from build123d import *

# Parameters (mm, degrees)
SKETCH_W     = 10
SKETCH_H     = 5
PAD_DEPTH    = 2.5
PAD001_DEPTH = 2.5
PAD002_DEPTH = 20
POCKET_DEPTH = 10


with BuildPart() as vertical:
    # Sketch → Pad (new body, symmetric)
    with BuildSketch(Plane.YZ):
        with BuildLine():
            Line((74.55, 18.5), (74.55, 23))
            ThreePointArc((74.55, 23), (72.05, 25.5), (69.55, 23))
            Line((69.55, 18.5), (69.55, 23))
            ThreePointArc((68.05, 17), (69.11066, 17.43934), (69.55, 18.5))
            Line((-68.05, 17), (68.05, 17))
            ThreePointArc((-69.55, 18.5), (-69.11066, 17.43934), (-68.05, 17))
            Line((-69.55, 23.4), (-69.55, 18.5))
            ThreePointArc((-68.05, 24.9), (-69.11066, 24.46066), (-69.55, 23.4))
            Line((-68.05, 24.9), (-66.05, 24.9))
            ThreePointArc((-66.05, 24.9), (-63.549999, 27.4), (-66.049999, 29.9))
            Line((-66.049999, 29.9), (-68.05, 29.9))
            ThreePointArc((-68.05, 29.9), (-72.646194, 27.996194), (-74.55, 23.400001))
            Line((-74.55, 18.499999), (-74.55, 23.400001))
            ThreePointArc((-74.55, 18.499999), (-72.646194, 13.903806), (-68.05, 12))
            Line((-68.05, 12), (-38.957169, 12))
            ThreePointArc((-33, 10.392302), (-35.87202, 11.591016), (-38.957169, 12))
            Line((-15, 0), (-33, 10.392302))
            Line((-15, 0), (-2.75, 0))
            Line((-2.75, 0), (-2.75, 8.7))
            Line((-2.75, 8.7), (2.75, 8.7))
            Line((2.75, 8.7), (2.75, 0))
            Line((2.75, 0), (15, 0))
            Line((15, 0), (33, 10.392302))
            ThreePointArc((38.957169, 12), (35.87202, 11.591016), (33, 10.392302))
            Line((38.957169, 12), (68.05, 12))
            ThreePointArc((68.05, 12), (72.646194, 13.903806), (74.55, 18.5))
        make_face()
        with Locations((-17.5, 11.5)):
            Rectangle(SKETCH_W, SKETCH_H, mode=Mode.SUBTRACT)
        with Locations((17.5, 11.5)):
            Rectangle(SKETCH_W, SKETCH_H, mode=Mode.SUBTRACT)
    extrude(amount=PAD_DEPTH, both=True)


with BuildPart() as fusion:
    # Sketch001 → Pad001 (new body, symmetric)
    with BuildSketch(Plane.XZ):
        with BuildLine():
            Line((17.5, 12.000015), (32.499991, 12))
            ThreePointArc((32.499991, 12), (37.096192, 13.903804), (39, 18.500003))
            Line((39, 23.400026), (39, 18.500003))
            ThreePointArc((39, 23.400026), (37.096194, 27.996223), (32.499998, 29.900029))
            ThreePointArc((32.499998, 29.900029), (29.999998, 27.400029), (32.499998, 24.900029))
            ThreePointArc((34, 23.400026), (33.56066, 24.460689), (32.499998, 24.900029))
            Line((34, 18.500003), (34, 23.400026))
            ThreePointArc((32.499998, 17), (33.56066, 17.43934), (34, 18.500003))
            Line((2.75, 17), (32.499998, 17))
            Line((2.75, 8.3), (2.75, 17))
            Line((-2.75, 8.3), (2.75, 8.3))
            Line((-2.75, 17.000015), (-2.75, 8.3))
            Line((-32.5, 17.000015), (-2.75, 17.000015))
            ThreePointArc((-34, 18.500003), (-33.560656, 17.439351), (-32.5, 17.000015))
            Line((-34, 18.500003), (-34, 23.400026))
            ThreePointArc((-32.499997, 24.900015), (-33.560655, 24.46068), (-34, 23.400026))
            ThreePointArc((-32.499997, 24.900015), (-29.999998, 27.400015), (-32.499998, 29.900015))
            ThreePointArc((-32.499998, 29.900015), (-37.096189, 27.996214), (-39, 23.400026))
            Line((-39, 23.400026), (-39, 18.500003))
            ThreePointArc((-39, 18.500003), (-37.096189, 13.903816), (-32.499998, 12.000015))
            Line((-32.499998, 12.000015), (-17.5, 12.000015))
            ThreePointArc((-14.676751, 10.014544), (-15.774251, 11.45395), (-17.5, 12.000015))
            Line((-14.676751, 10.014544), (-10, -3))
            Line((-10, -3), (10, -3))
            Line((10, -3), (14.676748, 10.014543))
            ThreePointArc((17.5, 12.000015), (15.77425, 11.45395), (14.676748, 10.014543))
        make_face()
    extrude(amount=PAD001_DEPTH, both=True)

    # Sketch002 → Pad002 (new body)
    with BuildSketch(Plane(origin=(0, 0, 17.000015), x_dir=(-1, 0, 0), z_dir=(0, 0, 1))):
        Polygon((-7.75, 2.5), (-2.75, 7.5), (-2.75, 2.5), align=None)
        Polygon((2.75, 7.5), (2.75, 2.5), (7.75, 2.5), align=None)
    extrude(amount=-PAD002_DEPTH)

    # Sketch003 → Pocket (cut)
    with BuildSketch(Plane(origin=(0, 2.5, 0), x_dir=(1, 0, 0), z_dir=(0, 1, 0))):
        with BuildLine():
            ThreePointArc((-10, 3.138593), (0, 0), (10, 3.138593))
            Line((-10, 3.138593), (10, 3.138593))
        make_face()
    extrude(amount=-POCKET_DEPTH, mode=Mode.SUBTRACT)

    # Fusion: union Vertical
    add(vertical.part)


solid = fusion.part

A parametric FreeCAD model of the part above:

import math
import FreeCAD as App
import Part
import Sketcher
from FreeCAD import Vector
Q = App.Units.Quantity


def add_polygon(sketch, points):
    """Adds a closed chain of lines whose ends are joined by coincident constraints."""
    first, n = sketch.GeometryCount, len(points)
    for a, b in zip(points, points[1:] + points[:1]):
        sketch.addGeometry(Part.LineSegment(App.Vector(*a, 0), App.Vector(*b, 0)), False)
    for i in range(n):
        sketch.addConstraint(Sketcher.Constraint("Coincident", first + i, 2, first + (i + 1) % n, 1))

doc = App.newDocument("Part")
body = doc.addObject("PartDesign::Body", "Body")

# Sketch on YZ plane
sketch1 = doc.addObject("Sketcher::SketchObject", "Sketch")
body.addObject(sketch1)
sketch1.AttachmentSupport = (doc.YZ_Plane, [""])
sketch1.MapMode = "FlatFace"
sketch1.addGeometry(Part.LineSegment(Vector(74.5, 18.5, 0), Vector(74.5, 23, 0)), False)  # 0
sketch1.addGeometry(Part.ArcOfCircle(Part.Circle(Vector(72, 23, 0), Vector(0, 0, 1), 2.5), math.radians(0), math.radians(180)), False)  # 1
sketch1.addGeometry(Part.LineSegment(Vector(69.5, 23, 0), Vector(69.5, 18.5, 0)), False)  # 2
sketch1.addGeometry(Part.ArcOfCircle(Part.Circle(Vector(68, 18.5, 0), Vector(0, 0, 1), 1.5), math.radians(-90), math.radians(0)), False)  # 3
sketch1.addGeometry(Part.LineSegment(Vector(68, 17, 0), Vector(-68, 17, 0)), False)  # 4
sketch1.addGeometry(Part.ArcOfCircle(Part.Circle(Vector(-68, 18.5, 0), Vector(0, 0, 1), 1.5), math.radians(-180), math.radians(-90)), False)  # 5
sketch1.addGeometry(Part.LineSegment(Vector(-69.5, 18.5, 0), Vector(-69.5, 23.4, 0)), False)  # 6
sketch1.addGeometry(Part.ArcOfCircle(Part.Circle(Vector(-68, 23.4, 0), Vector(0, 0, 1), 1.5), math.radians(90), math.radians(180)), False)  # 7
sketch1.addGeometry(Part.LineSegment(Vector(-68, 24.9, 0), Vector(-66, 24.9, 0)), False)  # 8
sketch1.addGeometry(Part.ArcOfCircle(Part.Circle(Vector(-66, 27.4, 0), Vector(0, 0, 1), 2.5), math.radians(-90), math.radians(90)), False)  # 9
sketch1.addGeometry(Part.LineSegment(Vector(-66, 29.9, 0), Vector(-68, 29.9, 0)), False)  # 10
sketch1.addGeometry(Part.ArcOfCircle(Part.Circle(Vector(-68, 23.4, 0), Vector(0, 0, 1), 6.5), math.radians(90), math.radians(180)), False)  # 11
sketch1.addGeometry(Part.LineSegment(Vector(-74.5, 23.4, 0), Vector(-74.5, 18.5, 0)), False)  # 12
sketch1.addGeometry(Part.ArcOfCircle(Part.Circle(Vector(-68, 18.5, 0), Vector(0, 0, 1), 6.5), math.radians(-180), math.radians(-90)), False)  # 13
sketch1.addGeometry(Part.LineSegment(Vector(-68, 12, 0), Vector(-39, 12, 0)), False)  # 14
sketch1.addGeometry(Part.ArcOfCircle(Part.Circle(Vector(-39, 0.2, 0), Vector(0, 0, 1), 11.8), math.radians(60), math.radians(90)), False)  # 15
sketch1.addGeometry(Part.LineSegment(Vector(-33, 10.4, 0), Vector(-15, 0, 0)), False)  # 16
sketch1.addGeometry(Part.LineSegment(Vector(-15, 0, 0), Vector(-2.8, 0, 0)), False)  # 17
sketch1.addGeometry(Part.LineSegment(Vector(-2.8, 0, 0), Vector(-2.8, 8.7, 0)), False)  # 18
sketch1.addGeometry(Part.LineSegment(Vector(-2.8, 8.7, 0), Vector(2.8, 8.7, 0)), False)  # 19
sketch1.addGeometry(Part.LineSegment(Vector(2.8, 8.7, 0), Vector(2.8, 0, 0)), False)  # 20
sketch1.addGeometry(Part.LineSegment(Vector(2.8, 0, 0), Vector(15, 0, 0)), False)  # 21
sketch1.addGeometry(Part.LineSegment(Vector(15, 0, 0), Vector(33, 10.4, 0)), False)  # 22
sketch1.addGeometry(Part.ArcOfCircle(Part.Circle(Vector(39, 0.2, 0), Vector(0, 0, 1), 11.8), math.radians(90), math.radians(120)), False)  # 23
sketch1.addGeometry(Part.LineSegment(Vector(39, 12, 0), Vector(68, 12, 0)), False)  # 24
sketch1.addGeometry(Part.ArcOfCircle(Part.Circle(Vector(68, 18.5, 0), Vector(0, 0, 1), 6.5), math.radians(-90), math.radians(0)), False)  # 25
add_polygon(sketch1, [(-12.5, 9), (-22.5, 9), (-22.5, 14), (-12.5, 14)])  # lines 26-29
add_polygon(sketch1, [(22.5, 9), (12.5, 9), (12.5, 14), (22.5, 14)])  # lines 30-33
sketch1.addConstraint([
    Sketcher.Constraint("Tangent", 0, 2, 1, 1),
    Sketcher.Constraint("Tangent", 1, 2, 2, 1),
    Sketcher.Constraint("Tangent", 2, 2, 3, 2),
    Sketcher.Constraint("Tangent", 3, 1, 4, 1),
    Sketcher.Constraint("Tangent", 4, 2, 5, 2),
    Sketcher.Constraint("Tangent", 5, 1, 6, 1),
    Sketcher.Constraint("Tangent", 6, 2, 7, 2),
    Sketcher.Constraint("Tangent", 7, 1, 8, 1),
    Sketcher.Constraint("Tangent", 8, 2, 9, 1),
    Sketcher.Constraint("Tangent", 9, 2, 10, 1),
    Sketcher.Constraint("Tangent", 10, 2, 11, 1),
    Sketcher.Constraint("Tangent", 11, 2, 12, 1),
    Sketcher.Constraint("Tangent", 12, 2, 13, 1),
    Sketcher.Constraint("Tangent", 13, 2, 14, 1),
    Sketcher.Constraint("Coincident", 14, 2, 15, 2),
    Sketcher.Constraint("Coincident", 15, 1, 16, 1),
    Sketcher.Constraint("Coincident", 16, 2, 17, 1),
    Sketcher.Constraint("Coincident", 17, 2, 18, 1),
    Sketcher.Constraint("Coincident", 18, 2, 19, 1),
    Sketcher.Constraint("Coincident", 19, 2, 20, 1),
    Sketcher.Constraint("Coincident", 20, 2, 21, 1),
    Sketcher.Constraint("Coincident", 21, 2, 22, 1),
    Sketcher.Constraint("Coincident", 22, 2, 23, 2),
    Sketcher.Constraint("Coincident", 23, 1, 24, 1),
    Sketcher.Constraint("Tangent", 24, 2, 25, 1),
    Sketcher.Constraint("Tangent", 25, 2, 0, 1),
    Sketcher.Constraint("Vertical", 0),
    Sketcher.Constraint("Vertical", 2),
    Sketcher.Constraint("Horizontal", 4),
    Sketcher.Constraint("Vertical", 6),
    Sketcher.Constraint("Horizontal", 8),
    Sketcher.Constraint("Horizontal", 10),
    Sketcher.Constraint("Vertical", 12),
    Sketcher.Constraint("Horizontal", 14),
    Sketcher.Constraint("Horizontal", 17),
    Sketcher.Constraint("Vertical", 18),
    Sketcher.Constraint("Horizontal", 19),
    Sketcher.Constraint("Vertical", 20),
    Sketcher.Constraint("Horizontal", 21),
    Sketcher.Constraint("Horizontal", 24),
    Sketcher.Constraint("Horizontal", 26),
    Sketcher.Constraint("Vertical", 27),
    Sketcher.Constraint("Horizontal", 28),
    Sketcher.Constraint("Vertical", 29),
    Sketcher.Constraint("Horizontal", 30),
    Sketcher.Constraint("Vertical", 31),
    Sketcher.Constraint("Horizontal", 32),
    Sketcher.Constraint("Vertical", 33),
    Sketcher.Constraint("Coincident", 11, 3, 7, 3),
    Sketcher.Constraint("Coincident", 13, 3, 5, 3),
    Sketcher.Constraint("Coincident", 25, 3, 3, 3),
    Sketcher.Constraint("Equal", 3, 5),
    Sketcher.Constraint("Equal", 5, 7),
    Sketcher.Constraint("Equal", 1, 9),
    Sketcher.Constraint("Equal", 15, 23),
    Sketcher.Constraint("Symmetric", 17, 2, 20, 2, -1, 1),
    Sketcher.Constraint("Symmetric", 16, 2, 21, 2, -2),
    Sketcher.Constraint("Symmetric", 15, 1, 22, 2, -2),
    Sketcher.Constraint("Symmetric", 29, 2, 30, 2, -2),
    Sketcher.Constraint("Symmetric", 27, 2, 32, 2, -2),
    Sketcher.Constraint("Equal", 14, 24),
    Sketcher.Constraint("Radius", 1, 2.5),
    Sketcher.Constraint("Radius", 3, 1.500001),
    Sketcher.Constraint("DistanceX", 8, 1, 8, 2, 2.0),
    Sketcher.Constraint("DistanceX", 26, 2, 26, 1, 10.0),
    Sketcher.Constraint("DistanceY", 27, 1, 27, 2, 5.0),
    Sketcher.Constraint("Angle", 16, Q("-29.999993 deg")),
    Sketcher.Constraint("DistanceX", 4, 2, 4, 1, 136.1),
    Sketcher.Constraint("DistanceX", 19, 1, 19, 2, 5.5),
    Sketcher.Constraint("DistanceY", 0, 1, 0, 2, 4.5),
    Sketcher.Constraint("DistanceY", 6, 1, 6, 2, 4.9),
    Sketcher.Constraint("DistanceY", 18, 1, 18, 2, 8.7),
    Sketcher.Constraint("DistanceY", -1, 1, 1, 3, 23.0),
    Sketcher.Constraint("DistanceX", 15, 1, -1, 1, 33.0),
    Sketcher.Constraint("DistanceX", 16, 2, -1, 1, 15.0),
    Sketcher.Constraint("DistanceY", -1, 1, 26, 2, 9.0),
    Sketcher.Constraint("DistanceX", 26, 2, -1, 1, 22.5),
    Sketcher.Constraint("DistanceX", -1, 1, 1, 3, 72.05),
    Sketcher.Constraint("Radius", 15, 11.840593),
    Sketcher.Constraint("DistanceX", 14, 1, 14, 2, 29.092831),
])
pad1 = doc.addObject("PartDesign::Pad", "Pad")
body.addObject(pad1)
pad1.Profile = sketch1
pad1.Length = 5
pad1.Midplane = True
body2 = doc.addObject("PartDesign::Body", "Body001")
body2.AllowCompound = True

# Sketch on XZ plane
sketch2 = doc.addObject("Sketcher::SketchObject", "Sketch001")
body2.addObject(sketch2)
sketch2.AttachmentSupport = (doc.getObject("XZ_Plane001"), [""])
sketch2.MapMode = "FlatFace"
sketch2.addGeometry([
    Part.LineSegment(Vector(17.5, 12.000015, 0), Vector(32.499991, 12, 0)),  # 0
    Part.ArcOfCircle(Part.Circle(Vector(32.5, 18.5, 0), Vector(0, 0, 1), 6.5), math.radians(-90.000077), math.radians(0.000024)),  # 1
    Part.LineSegment(Vector(39, 18.500003, 0), Vector(39, 23.400026, 0)),  # 2
    Part.ArcOfCircle(Part.Circle(Vector(32.5, 23.400029, 0), Vector(0, 0, 1), 6.5), math.radians(-0.000024), math.radians(90.000015)),  # 3
    Part.ArcOfCircle(Part.Circle(Vector(32.499998, 27.400029, 0), Vector(0, 0, 1), 2.5), math.radians(90), math.radians(270)),  # 4
    Part.ArcOfCircle(Part.Circle(Vector(32.499999, 23.400028, 0), Vector(0, 0, 1), 1.500001), math.radians(-0.000092), math.radians(90.000054)),  # 5
    Part.LineSegment(Vector(34, 23.400026, 0), Vector(34, 18.500003, 0)),  # 6
    Part.ArcOfCircle(Part.Circle(Vector(32.499999, 18.500001, 0), Vector(0, 0, 1), 1.500001), math.radians(-90.000054), math.radians(0.000092)),  # 7
    Part.LineSegment(Vector(32.499998, 17, 0), Vector(2.75, 17, 0)),  # 8
    Part.LineSegment(Vector(2.75, 17, 0), Vector(2.75, 8.3, 0)),  # 9
    Part.LineSegment(Vector(2.75, 8.3, 0), Vector(-2.75, 8.3, 0)),  # 10
    Part.LineSegment(Vector(-2.75, 8.3, 0), Vector(-2.75, 17.000015, 0)),  # 11
    Part.LineSegment(Vector(-2.75, 17.000015, 0), Vector(-32.5, 17.000015, 0)),  # 12
    Part.ArcOfCircle(Part.Circle(Vector(-32.499999, 18.500016, 0), Vector(0, 0, 1), 1.500001), math.radians(-179.999519), math.radians(-90.000022)),  # 13
    Part.LineSegment(Vector(-34, 18.500003, 0), Vector(-34, 23.400026, 0)),  # 14
    Part.ArcOfCircle(Part.Circle(Vector(-32.499999, 23.400014, 0), Vector(0, 0, 1), 1.500001), math.radians(89.999908), math.radians(179.999557)),  # 15
    Part.ArcOfCircle(Part.Circle(Vector(-32.499998, 27.400015, 0), Vector(0, 0, 1), 2.5), math.radians(-89.999977), math.radians(90)),  # 16
    Part.ArcOfCircle(Part.Circle(Vector(-32.5, 23.400015, 0), Vector(0, 0, 1), 6.5), math.radians(89.999985), math.radians(179.999901)),  # 17
    Part.LineSegment(Vector(-39, 23.400026, 0), Vector(-39, 18.500003, 0)),  # 18
    Part.ArcOfCircle(Part.Circle(Vector(-32.5, 18.500015, 0), Vector(0, 0, 1), 6.5), math.radians(-179.999892), math.radians(-89.999985)),  # 19
    Part.LineSegment(Vector(-32.499998, 12.000015, 0), Vector(-17.5, 12.000015, 0)),  # 20
    Part.ArcOfCircle(Part.Circle(Vector(-17.499997, 9.000018, 0), Vector(0, 0, 1), 2.999997), math.radians(19.765764), math.radians(90.000055)),  # 21
    Part.LineSegment(Vector(-14.676751, 10.014544, 0), Vector(-10, -3, 0)),  # 22
    Part.LineSegment(Vector(-10, -3, 0), Vector(10, -3, 0)),  # 23
    Part.LineSegment(Vector(10, -3, 0), Vector(14.676748, 10.014543, 0)),  # 24
    Part.ArcOfCircle(Part.Circle(Vector(17.499997, 9.000014, 0), Vector(0, 0, 1), 3.000001), math.radians(89.999951), math.radians(160.2342)),  # 25
], False)
sketch2.addConstraint([
    Sketcher.Constraint("Coincident", 0, 2, 1, 1),
    Sketcher.Constraint("Coincident", 1, 2, 2, 1),
    Sketcher.Constraint("Coincident", 2, 2, 3, 1),
    Sketcher.Constraint("Coincident", 3, 2, 4, 1),
    Sketcher.Constraint("Coincident", 4, 2, 5, 2),
    Sketcher.Constraint("Coincident", 5, 1, 6, 1),
    Sketcher.Constraint("Coincident", 6, 2, 7, 2),
    Sketcher.Constraint("Coincident", 7, 1, 8, 1),
    Sketcher.Constraint("Coincident", 8, 2, 9, 1),
    Sketcher.Constraint("Coincident", 9, 2, 10, 1),
    Sketcher.Constraint("Coincident", 10, 2, 11, 1),
    Sketcher.Constraint("Coincident", 11, 2, 12, 1),
    Sketcher.Constraint("Coincident", 12, 2, 13, 2),
    Sketcher.Constraint("Coincident", 13, 1, 14, 1),
    Sketcher.Constraint("Coincident", 14, 2, 15, 2),
    Sketcher.Constraint("Coincident", 15, 1, 16, 1),
    Sketcher.Constraint("Coincident", 16, 2, 17, 1),
    Sketcher.Constraint("Coincident", 17, 2, 18, 1),
    Sketcher.Constraint("Coincident", 18, 2, 19, 1),
    Sketcher.Constraint("Coincident", 19, 2, 20, 1),
    Sketcher.Constraint("Coincident", 20, 2, 21, 2),
    Sketcher.Constraint("Coincident", 21, 1, 22, 1),
    Sketcher.Constraint("Coincident", 22, 2, 23, 1),
    Sketcher.Constraint("Coincident", 23, 2, 24, 1),
    Sketcher.Constraint("Coincident", 24, 2, 25, 2),
    Sketcher.Constraint("Coincident", 25, 1, 0, 1),
    Sketcher.Constraint("Vertical", 2),
    Sketcher.Constraint("Vertical", 6),
    Sketcher.Constraint("Horizontal", 8),
    Sketcher.Constraint("Vertical", 9),
    Sketcher.Constraint("Horizontal", 10),
    Sketcher.Constraint("Vertical", 11),
    Sketcher.Constraint("Horizontal", 12),
    Sketcher.Constraint("Vertical", 14),
    Sketcher.Constraint("Vertical", 18),
    Sketcher.Constraint("Horizontal", 20),
    Sketcher.Constraint("Horizontal", 23),
    Sketcher.Constraint("Coincident", 5, 3, 3, 3),
    Sketcher.Constraint("Coincident", 7, 3, 1, 3),
    Sketcher.Constraint("Coincident", 17, 3, 15, 3),
    Sketcher.Constraint("Coincident", 19, 3, 13, 3),
    Sketcher.Constraint("Radius", 25, 3.000001),
    Sketcher.Constraint("Radius", 1, 6.5),
    Sketcher.Constraint("Radius", 3, 6.5),
    Sketcher.Constraint("Radius", 4, 2.5),
    Sketcher.Constraint("Radius", 13, 1.500001),
    Sketcher.Constraint("Radius", 15, 1.500001),
    Sketcher.Constraint("Radius", 16, 2.5),
    Sketcher.Constraint("DistanceX", 23, 1, 23, 2, 20.0),
    Sketcher.Constraint("DistanceX", 10, 2, 10, 1, 5.5),
    Sketcher.Constraint("DistanceY", 9, 2, 9, 1, 8.7),
    Sketcher.Constraint("DistanceY", -1, 1, 0, 2, 12.0),
    Sketcher.Constraint("DistanceX", -1, 1, 1, 2, 39.0),
    Sketcher.Constraint("DistanceX", 13, 1, -1, 1, 34.0),
    Sketcher.Constraint("DistanceX", 22, 2, -1, 1, 10.0),
    Sketcher.Constraint("DistanceY", 22, 2, -1, 1, 3.0),
    Sketcher.Constraint("DistanceX", 16, 3, 21, 3, 15.000001),
    Sketcher.Constraint("DistanceX", 25, 3, 7, 3, 15.000002),
    Sketcher.Constraint("DistanceX", 25, 3, 4, 3, 15.000001),
    Sketcher.Constraint("DistanceY", 25, 3, 11, 2, 8.000001),
    Sketcher.Constraint("DistanceX", 12, 2, 20, 2, 15.0),
    Sketcher.Constraint("DistanceX", 12, 2, 12, 1, 29.75),
    Sketcher.Constraint("DistanceX", 12, 2, -1, 1, 32.5),
    Sketcher.Constraint("DistanceX", -1, 1, 25, 1, 17.5),
    Sketcher.Constraint("DistanceY", 13, 3, 15, 3, 4.899999),
    Sketcher.Constraint("DistanceX", 4, 2, 5, 1, 1.500002),
    Sketcher.Constraint("DistanceX", 13, 1, 19, 2, 1.500002),
    Sketcher.Constraint("Radius", 21, 2.999997),
    Sketcher.Constraint("Distance", 0, 14.999991),
    Sketcher.Constraint("Distance", 22, 13.82933),
    Sketcher.Constraint("DistanceX", 8, 2, 8, 1, 29.749998),
    Sketcher.Constraint("DistanceY", 2, 1, 2, 2, 4.900023),
    Sketcher.Constraint("DistanceY", 6, 2, 6, 1, 4.900023),
    Sketcher.Constraint("DistanceY", 11, 1, 11, 2, 8.700015),
    Sketcher.Constraint("DistanceY", 14, 1, 14, 2, 4.900023),
    Sketcher.Constraint("DistanceY", 18, 2, 18, 1, 4.900023),
    Sketcher.Constraint("DistanceY", -1, 1, 3, 3, 23.400029),
    Sketcher.Constraint("DistanceX", 21, 1, -1, 1, 14.676751),
    Sketcher.Constraint("DistanceY", 13, 1, 15, 3, 4.900011),
    Sketcher.Constraint("DistanceY", 17, 2, 15, 1, 1.499989),
    Sketcher.Constraint("DistanceX", 24, 2, 25, 3, 2.823249),
    Sketcher.Constraint("DistanceY", -1, 1, 1, 2, 18.500003),
    Sketcher.Constraint("DistanceX", -1, 1, 3, 2, 32.499998),
    Sketcher.Constraint("DistanceY", -1, 1, 5, 1, 23.400026),
    Sketcher.Constraint("DistanceX", 15, 1, -1, 1, 32.499997),
    Sketcher.Constraint("DistanceX", 16, 2, -1, 1, 32.499998),
])
pad2 = doc.addObject("PartDesign::Pad", "Pad001")
body2.addObject(pad2)
pad2.Profile = sketch2
pad2.Length = 5
pad2.Midplane = True

# Sketch on XY plane
sketch3 = doc.addObject("Sketcher::SketchObject", "Sketch002")
body2.addObject(sketch3)
sketch3.AttachmentSupport = (doc.getObject("XY_Plane001"), [""])
sketch3.MapMode = "FlatFace"
sketch3.AttachmentOffset = App.Placement(Vector(0, 0, 17.000015), App.Rotation())
add_polygon(sketch3, [(3, -8), (8, -2), (3, -2)])  # lines 0-2
add_polygon(sketch3, [(-3, -8), (-3, -2), (-8, -2)])  # lines 3-5
sketch3.addConstraint([
    Sketcher.Constraint("Horizontal", 1),
    Sketcher.Constraint("Vertical", 2),
    Sketcher.Constraint("Vertical", 3),
    Sketcher.Constraint("Horizontal", 4),
    Sketcher.Constraint("Symmetric", 1, 2, 3, 2, -2),
    Sketcher.Constraint("Perpendicular", 0, 5),
    Sketcher.Constraint("Horizontal", 2, 2, 5, 2),
    Sketcher.Constraint("Equal", 1, 4),
    Sketcher.Constraint("DistanceX", 1, 2, 1, 1, 5.0),
    Sketcher.Constraint("DistanceY", 0, 2, -1, 1, 2.5),
    Sketcher.Constraint("DistanceX", 3, 2, 1, 2, 5.5),
])
pad3 = doc.addObject("PartDesign::Pad", "Pad002")
body2.addObject(pad3)
pad3.Profile = sketch3
pad3.Length = 20
pad3.Reversed = True

# Sketch on XZ plane
sketch4 = doc.addObject("Sketcher::SketchObject", "Sketch003")
body2.addObject(sketch4)
sketch4.AttachmentSupport = (doc.getObject("XZ_Plane001"), [""])
sketch4.MapMode = "FlatFace"
sketch4.AttachmentOffset = App.Placement(Vector(0, 0, -2.5), App.Rotation())
sketch4.addGeometry([
    Part.ArcOfCircle(Part.Circle(Vector(0, -18, 0), Vector(0, 0, 1), 18), math.radians(55), math.radians(125)),
    Part.LineSegment(Vector(10, -3, 0), Vector(-10, -3, 0)),
], False)
sketch4.addConstraint([
    Sketcher.Constraint("Coincident", 0, 1, 1, 1),
    Sketcher.Constraint("Coincident", 1, 2, 0, 2),
    Sketcher.Constraint("Horizontal", 1),
    Sketcher.Constraint("PointOnObject", 0, 3, -2),
    Sketcher.Constraint("Radius", 0, 17.500002),
    Sketcher.Constraint("DistanceX", 1, 2, 1, 1, 20.0),
    Sketcher.Constraint("DistanceY", 0, 3, -1, 1, 17.500002),
])
pocket1 = doc.addObject("PartDesign::Pocket", "Pocket")
body2.addObject(pocket1)
pocket1.Profile = sketch4
pocket1.Length = 10
pocket1.Reversed = True
doc.recompute()

boolean = doc.addObject("PartDesign::Boolean", "Boolean")
body2.addObject(boolean)
boolean.Type = "Fuse"
boolean.addObjects([body])

doc.recompute()
